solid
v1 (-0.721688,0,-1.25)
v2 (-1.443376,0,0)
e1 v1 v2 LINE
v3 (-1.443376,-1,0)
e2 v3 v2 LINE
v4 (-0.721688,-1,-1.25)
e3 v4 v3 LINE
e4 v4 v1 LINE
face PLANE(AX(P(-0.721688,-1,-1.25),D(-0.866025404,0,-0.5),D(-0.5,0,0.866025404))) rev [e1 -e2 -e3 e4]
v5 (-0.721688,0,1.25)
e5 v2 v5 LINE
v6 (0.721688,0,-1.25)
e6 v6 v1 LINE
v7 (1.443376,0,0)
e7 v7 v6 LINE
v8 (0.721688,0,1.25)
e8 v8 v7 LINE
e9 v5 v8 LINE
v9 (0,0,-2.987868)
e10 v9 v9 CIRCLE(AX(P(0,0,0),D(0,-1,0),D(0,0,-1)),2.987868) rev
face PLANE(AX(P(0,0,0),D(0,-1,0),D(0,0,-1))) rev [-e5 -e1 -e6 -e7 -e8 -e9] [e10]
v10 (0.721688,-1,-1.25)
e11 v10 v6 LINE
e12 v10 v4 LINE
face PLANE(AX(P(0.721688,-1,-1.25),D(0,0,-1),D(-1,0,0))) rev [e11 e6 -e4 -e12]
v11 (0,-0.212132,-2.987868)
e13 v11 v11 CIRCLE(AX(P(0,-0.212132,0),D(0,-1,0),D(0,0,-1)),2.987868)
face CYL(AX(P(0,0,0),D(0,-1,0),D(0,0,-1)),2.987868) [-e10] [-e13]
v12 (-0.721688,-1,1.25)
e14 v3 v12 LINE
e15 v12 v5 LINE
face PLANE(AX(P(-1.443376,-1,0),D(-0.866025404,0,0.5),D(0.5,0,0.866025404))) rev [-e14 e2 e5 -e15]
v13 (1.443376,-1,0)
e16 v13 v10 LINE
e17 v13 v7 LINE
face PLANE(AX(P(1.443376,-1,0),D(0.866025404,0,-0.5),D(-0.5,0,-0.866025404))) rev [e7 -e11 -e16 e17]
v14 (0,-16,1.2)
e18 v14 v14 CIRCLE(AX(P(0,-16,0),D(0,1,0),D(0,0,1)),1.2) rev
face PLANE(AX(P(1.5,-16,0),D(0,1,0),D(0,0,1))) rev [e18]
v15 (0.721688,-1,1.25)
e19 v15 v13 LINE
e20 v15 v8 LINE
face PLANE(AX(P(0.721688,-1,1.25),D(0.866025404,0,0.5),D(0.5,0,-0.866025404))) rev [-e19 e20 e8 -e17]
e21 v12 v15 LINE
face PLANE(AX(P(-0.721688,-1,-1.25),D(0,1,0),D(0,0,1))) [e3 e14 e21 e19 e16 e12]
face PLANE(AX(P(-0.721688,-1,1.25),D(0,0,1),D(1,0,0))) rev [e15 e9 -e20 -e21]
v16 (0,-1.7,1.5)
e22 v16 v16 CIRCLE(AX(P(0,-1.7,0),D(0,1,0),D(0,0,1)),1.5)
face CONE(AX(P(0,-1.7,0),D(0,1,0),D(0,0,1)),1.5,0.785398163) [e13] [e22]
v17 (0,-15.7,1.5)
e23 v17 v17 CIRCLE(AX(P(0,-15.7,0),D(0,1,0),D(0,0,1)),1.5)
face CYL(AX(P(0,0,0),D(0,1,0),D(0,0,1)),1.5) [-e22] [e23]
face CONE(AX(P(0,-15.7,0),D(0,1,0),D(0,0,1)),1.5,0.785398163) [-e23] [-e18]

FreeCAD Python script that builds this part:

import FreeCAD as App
import Part
import Sketcher
Q = App.Units.Quantity


def edges_at(feature, points):
    """Names of the edges that pass closest to the given points."""
    edges = feature.Shape.Edges
    near = lambda p: min(range(len(edges)), key=lambda i: edges[i].distToShape(Part.Vertex(*p))[0])
    return sorted({f"Edge{near(p) + 1}" for p in points})


def add_polygon(sketch, points):
    """Adds a closed chain of lines whose ends are joined by coincident constraints."""
    first, n = sketch.GeometryCount, len(points)
    for a, b in zip(points, points[1:] + points[:1]):
        sketch.addGeometry(Part.LineSegment(App.Vector(*a, 0), App.Vector(*b, 0)), False)
    for i in range(n):
        sketch.addConstraint(Sketcher.Constraint("Coincident", first + i, 2, first + (i + 1) % n, 1))

doc = App.newDocument("Part")
body = doc.addObject("PartDesign::Body", "Body")

# Sketch on XY plane
sketch1 = doc.addObject("Sketcher::SketchObject", "Sketch")
body.addObject(sketch1)
sketch1.AttachmentSupport = (doc.XY_Plane, [""])
sketch1.MapMode = "FlatFace"
add_polygon(sketch1, [(3.2, 0), (0, 0), (0, -16), (1.5, -16), (1.5, -1.7)])  # lines 0-4
sketch1.addConstraint(Sketcher.Constraint("Horizontal", 0))
sketch1.addConstraint(Sketcher.Constraint("Vertical", 1))
sketch1.addConstraint(Sketcher.Constraint("Horizontal", 2))
sketch1.addConstraint(Sketcher.Constraint("Vertical", 3))
sketch1.addConstraint(Sketcher.Constraint("Coincident", 0, 2, -1, 1))
sketch1.addConstraint(Sketcher.Constraint("DistanceY", 1, 2, 1, 1, Q("16 mm")))
sketch1.addConstraint(Sketcher.Constraint("Angle", 4, Q("45 deg")))
sketch1.addConstraint(Sketcher.Constraint("DistanceX", 0, 2, 0, 1, Q("3.2 mm")))
sketch1.addConstraint(Sketcher.Constraint("DistanceX", 2, 1, 2, 2, Q("1.5 mm")))
revolution = doc.addObject("PartDesign::Revolution", "Revolution")
body.addObject(revolution)
revolution.Profile = sketch1
revolution.ReferenceAxis = (sketch1, ["V_Axis"])
revolution.Angle = 360
doc.recompute()

chamfer = doc.addObject("PartDesign::Chamfer", "Chamfer")
body.addObject(chamfer)
chamfer.Base = (revolution, edges_at(revolution, [(0, 0, -3.2)]))
chamfer.ChamferType = "Two distances"
chamfer.Size = 0.3
chamfer.Size2 = 0.212132
chamfer.FlipDirection = True
doc.recompute()

chamfer2 = doc.addObject("PartDesign::Chamfer", "Chamfer001")
body.addObject(chamfer2)
chamfer2.Base = (chamfer, edges_at(chamfer, [(0, -16, -1.5)]))
chamfer2.Size = 0.3

# Sketch on XZ plane
sketch2 = doc.addObject("Sketcher::SketchObject", "Sketch001")
body.addObject(sketch2)
sketch2.AttachmentSupport = (doc.XZ_Plane, [""])
sketch2.MapMode = "FlatFace"
add_polygon(sketch2, [(-0.7, -1.2), (-1.4, 0), (-0.7, 1.2), (0.7, 1.2), (1.4, 0), (0.7, -1.2)])  # lines 0-5
sketch2.addConstraint(Sketcher.Constraint("Horizontal", 2))
sketch2.addConstraint(Sketcher.Constraint("Horizontal", 5))
sketch2.addConstraint(Sketcher.Constraint("Symmetric", 0, 2, 3, 2, -1, 1))
sketch2.addConstraint(Sketcher.Constraint("Symmetric", 1, 2, 4, 2, -1, 1))
sketch2.addConstraint(Sketcher.Constraint("PointOnObject", 0, 2, -1))
sketch2.addConstraint(Sketcher.Constraint("Parallel", 0, 3))
sketch2.addConstraint(Sketcher.Constraint("Vertical", 2, 2, 4, 2))
sketch2.addConstraint(Sketcher.Constraint("Angle", 0, Q("120 deg")))
sketch2.addConstraint(Sketcher.Constraint("DistanceY", 4, 2, 2, 2, Q("2.5 mm")))
sketch2.addConstraint(Sketcher.Constraint("DistanceX", 2, 1, 2, 2, Q("1.443376 mm")))
pocket1 = doc.addObject("PartDesign::Pocket", "Pocket")
body.addObject(pocket1)
pocket1.Profile = sketch2
pocket1.Length = 1
pocket1.Reversed = True

doc.recompute()
